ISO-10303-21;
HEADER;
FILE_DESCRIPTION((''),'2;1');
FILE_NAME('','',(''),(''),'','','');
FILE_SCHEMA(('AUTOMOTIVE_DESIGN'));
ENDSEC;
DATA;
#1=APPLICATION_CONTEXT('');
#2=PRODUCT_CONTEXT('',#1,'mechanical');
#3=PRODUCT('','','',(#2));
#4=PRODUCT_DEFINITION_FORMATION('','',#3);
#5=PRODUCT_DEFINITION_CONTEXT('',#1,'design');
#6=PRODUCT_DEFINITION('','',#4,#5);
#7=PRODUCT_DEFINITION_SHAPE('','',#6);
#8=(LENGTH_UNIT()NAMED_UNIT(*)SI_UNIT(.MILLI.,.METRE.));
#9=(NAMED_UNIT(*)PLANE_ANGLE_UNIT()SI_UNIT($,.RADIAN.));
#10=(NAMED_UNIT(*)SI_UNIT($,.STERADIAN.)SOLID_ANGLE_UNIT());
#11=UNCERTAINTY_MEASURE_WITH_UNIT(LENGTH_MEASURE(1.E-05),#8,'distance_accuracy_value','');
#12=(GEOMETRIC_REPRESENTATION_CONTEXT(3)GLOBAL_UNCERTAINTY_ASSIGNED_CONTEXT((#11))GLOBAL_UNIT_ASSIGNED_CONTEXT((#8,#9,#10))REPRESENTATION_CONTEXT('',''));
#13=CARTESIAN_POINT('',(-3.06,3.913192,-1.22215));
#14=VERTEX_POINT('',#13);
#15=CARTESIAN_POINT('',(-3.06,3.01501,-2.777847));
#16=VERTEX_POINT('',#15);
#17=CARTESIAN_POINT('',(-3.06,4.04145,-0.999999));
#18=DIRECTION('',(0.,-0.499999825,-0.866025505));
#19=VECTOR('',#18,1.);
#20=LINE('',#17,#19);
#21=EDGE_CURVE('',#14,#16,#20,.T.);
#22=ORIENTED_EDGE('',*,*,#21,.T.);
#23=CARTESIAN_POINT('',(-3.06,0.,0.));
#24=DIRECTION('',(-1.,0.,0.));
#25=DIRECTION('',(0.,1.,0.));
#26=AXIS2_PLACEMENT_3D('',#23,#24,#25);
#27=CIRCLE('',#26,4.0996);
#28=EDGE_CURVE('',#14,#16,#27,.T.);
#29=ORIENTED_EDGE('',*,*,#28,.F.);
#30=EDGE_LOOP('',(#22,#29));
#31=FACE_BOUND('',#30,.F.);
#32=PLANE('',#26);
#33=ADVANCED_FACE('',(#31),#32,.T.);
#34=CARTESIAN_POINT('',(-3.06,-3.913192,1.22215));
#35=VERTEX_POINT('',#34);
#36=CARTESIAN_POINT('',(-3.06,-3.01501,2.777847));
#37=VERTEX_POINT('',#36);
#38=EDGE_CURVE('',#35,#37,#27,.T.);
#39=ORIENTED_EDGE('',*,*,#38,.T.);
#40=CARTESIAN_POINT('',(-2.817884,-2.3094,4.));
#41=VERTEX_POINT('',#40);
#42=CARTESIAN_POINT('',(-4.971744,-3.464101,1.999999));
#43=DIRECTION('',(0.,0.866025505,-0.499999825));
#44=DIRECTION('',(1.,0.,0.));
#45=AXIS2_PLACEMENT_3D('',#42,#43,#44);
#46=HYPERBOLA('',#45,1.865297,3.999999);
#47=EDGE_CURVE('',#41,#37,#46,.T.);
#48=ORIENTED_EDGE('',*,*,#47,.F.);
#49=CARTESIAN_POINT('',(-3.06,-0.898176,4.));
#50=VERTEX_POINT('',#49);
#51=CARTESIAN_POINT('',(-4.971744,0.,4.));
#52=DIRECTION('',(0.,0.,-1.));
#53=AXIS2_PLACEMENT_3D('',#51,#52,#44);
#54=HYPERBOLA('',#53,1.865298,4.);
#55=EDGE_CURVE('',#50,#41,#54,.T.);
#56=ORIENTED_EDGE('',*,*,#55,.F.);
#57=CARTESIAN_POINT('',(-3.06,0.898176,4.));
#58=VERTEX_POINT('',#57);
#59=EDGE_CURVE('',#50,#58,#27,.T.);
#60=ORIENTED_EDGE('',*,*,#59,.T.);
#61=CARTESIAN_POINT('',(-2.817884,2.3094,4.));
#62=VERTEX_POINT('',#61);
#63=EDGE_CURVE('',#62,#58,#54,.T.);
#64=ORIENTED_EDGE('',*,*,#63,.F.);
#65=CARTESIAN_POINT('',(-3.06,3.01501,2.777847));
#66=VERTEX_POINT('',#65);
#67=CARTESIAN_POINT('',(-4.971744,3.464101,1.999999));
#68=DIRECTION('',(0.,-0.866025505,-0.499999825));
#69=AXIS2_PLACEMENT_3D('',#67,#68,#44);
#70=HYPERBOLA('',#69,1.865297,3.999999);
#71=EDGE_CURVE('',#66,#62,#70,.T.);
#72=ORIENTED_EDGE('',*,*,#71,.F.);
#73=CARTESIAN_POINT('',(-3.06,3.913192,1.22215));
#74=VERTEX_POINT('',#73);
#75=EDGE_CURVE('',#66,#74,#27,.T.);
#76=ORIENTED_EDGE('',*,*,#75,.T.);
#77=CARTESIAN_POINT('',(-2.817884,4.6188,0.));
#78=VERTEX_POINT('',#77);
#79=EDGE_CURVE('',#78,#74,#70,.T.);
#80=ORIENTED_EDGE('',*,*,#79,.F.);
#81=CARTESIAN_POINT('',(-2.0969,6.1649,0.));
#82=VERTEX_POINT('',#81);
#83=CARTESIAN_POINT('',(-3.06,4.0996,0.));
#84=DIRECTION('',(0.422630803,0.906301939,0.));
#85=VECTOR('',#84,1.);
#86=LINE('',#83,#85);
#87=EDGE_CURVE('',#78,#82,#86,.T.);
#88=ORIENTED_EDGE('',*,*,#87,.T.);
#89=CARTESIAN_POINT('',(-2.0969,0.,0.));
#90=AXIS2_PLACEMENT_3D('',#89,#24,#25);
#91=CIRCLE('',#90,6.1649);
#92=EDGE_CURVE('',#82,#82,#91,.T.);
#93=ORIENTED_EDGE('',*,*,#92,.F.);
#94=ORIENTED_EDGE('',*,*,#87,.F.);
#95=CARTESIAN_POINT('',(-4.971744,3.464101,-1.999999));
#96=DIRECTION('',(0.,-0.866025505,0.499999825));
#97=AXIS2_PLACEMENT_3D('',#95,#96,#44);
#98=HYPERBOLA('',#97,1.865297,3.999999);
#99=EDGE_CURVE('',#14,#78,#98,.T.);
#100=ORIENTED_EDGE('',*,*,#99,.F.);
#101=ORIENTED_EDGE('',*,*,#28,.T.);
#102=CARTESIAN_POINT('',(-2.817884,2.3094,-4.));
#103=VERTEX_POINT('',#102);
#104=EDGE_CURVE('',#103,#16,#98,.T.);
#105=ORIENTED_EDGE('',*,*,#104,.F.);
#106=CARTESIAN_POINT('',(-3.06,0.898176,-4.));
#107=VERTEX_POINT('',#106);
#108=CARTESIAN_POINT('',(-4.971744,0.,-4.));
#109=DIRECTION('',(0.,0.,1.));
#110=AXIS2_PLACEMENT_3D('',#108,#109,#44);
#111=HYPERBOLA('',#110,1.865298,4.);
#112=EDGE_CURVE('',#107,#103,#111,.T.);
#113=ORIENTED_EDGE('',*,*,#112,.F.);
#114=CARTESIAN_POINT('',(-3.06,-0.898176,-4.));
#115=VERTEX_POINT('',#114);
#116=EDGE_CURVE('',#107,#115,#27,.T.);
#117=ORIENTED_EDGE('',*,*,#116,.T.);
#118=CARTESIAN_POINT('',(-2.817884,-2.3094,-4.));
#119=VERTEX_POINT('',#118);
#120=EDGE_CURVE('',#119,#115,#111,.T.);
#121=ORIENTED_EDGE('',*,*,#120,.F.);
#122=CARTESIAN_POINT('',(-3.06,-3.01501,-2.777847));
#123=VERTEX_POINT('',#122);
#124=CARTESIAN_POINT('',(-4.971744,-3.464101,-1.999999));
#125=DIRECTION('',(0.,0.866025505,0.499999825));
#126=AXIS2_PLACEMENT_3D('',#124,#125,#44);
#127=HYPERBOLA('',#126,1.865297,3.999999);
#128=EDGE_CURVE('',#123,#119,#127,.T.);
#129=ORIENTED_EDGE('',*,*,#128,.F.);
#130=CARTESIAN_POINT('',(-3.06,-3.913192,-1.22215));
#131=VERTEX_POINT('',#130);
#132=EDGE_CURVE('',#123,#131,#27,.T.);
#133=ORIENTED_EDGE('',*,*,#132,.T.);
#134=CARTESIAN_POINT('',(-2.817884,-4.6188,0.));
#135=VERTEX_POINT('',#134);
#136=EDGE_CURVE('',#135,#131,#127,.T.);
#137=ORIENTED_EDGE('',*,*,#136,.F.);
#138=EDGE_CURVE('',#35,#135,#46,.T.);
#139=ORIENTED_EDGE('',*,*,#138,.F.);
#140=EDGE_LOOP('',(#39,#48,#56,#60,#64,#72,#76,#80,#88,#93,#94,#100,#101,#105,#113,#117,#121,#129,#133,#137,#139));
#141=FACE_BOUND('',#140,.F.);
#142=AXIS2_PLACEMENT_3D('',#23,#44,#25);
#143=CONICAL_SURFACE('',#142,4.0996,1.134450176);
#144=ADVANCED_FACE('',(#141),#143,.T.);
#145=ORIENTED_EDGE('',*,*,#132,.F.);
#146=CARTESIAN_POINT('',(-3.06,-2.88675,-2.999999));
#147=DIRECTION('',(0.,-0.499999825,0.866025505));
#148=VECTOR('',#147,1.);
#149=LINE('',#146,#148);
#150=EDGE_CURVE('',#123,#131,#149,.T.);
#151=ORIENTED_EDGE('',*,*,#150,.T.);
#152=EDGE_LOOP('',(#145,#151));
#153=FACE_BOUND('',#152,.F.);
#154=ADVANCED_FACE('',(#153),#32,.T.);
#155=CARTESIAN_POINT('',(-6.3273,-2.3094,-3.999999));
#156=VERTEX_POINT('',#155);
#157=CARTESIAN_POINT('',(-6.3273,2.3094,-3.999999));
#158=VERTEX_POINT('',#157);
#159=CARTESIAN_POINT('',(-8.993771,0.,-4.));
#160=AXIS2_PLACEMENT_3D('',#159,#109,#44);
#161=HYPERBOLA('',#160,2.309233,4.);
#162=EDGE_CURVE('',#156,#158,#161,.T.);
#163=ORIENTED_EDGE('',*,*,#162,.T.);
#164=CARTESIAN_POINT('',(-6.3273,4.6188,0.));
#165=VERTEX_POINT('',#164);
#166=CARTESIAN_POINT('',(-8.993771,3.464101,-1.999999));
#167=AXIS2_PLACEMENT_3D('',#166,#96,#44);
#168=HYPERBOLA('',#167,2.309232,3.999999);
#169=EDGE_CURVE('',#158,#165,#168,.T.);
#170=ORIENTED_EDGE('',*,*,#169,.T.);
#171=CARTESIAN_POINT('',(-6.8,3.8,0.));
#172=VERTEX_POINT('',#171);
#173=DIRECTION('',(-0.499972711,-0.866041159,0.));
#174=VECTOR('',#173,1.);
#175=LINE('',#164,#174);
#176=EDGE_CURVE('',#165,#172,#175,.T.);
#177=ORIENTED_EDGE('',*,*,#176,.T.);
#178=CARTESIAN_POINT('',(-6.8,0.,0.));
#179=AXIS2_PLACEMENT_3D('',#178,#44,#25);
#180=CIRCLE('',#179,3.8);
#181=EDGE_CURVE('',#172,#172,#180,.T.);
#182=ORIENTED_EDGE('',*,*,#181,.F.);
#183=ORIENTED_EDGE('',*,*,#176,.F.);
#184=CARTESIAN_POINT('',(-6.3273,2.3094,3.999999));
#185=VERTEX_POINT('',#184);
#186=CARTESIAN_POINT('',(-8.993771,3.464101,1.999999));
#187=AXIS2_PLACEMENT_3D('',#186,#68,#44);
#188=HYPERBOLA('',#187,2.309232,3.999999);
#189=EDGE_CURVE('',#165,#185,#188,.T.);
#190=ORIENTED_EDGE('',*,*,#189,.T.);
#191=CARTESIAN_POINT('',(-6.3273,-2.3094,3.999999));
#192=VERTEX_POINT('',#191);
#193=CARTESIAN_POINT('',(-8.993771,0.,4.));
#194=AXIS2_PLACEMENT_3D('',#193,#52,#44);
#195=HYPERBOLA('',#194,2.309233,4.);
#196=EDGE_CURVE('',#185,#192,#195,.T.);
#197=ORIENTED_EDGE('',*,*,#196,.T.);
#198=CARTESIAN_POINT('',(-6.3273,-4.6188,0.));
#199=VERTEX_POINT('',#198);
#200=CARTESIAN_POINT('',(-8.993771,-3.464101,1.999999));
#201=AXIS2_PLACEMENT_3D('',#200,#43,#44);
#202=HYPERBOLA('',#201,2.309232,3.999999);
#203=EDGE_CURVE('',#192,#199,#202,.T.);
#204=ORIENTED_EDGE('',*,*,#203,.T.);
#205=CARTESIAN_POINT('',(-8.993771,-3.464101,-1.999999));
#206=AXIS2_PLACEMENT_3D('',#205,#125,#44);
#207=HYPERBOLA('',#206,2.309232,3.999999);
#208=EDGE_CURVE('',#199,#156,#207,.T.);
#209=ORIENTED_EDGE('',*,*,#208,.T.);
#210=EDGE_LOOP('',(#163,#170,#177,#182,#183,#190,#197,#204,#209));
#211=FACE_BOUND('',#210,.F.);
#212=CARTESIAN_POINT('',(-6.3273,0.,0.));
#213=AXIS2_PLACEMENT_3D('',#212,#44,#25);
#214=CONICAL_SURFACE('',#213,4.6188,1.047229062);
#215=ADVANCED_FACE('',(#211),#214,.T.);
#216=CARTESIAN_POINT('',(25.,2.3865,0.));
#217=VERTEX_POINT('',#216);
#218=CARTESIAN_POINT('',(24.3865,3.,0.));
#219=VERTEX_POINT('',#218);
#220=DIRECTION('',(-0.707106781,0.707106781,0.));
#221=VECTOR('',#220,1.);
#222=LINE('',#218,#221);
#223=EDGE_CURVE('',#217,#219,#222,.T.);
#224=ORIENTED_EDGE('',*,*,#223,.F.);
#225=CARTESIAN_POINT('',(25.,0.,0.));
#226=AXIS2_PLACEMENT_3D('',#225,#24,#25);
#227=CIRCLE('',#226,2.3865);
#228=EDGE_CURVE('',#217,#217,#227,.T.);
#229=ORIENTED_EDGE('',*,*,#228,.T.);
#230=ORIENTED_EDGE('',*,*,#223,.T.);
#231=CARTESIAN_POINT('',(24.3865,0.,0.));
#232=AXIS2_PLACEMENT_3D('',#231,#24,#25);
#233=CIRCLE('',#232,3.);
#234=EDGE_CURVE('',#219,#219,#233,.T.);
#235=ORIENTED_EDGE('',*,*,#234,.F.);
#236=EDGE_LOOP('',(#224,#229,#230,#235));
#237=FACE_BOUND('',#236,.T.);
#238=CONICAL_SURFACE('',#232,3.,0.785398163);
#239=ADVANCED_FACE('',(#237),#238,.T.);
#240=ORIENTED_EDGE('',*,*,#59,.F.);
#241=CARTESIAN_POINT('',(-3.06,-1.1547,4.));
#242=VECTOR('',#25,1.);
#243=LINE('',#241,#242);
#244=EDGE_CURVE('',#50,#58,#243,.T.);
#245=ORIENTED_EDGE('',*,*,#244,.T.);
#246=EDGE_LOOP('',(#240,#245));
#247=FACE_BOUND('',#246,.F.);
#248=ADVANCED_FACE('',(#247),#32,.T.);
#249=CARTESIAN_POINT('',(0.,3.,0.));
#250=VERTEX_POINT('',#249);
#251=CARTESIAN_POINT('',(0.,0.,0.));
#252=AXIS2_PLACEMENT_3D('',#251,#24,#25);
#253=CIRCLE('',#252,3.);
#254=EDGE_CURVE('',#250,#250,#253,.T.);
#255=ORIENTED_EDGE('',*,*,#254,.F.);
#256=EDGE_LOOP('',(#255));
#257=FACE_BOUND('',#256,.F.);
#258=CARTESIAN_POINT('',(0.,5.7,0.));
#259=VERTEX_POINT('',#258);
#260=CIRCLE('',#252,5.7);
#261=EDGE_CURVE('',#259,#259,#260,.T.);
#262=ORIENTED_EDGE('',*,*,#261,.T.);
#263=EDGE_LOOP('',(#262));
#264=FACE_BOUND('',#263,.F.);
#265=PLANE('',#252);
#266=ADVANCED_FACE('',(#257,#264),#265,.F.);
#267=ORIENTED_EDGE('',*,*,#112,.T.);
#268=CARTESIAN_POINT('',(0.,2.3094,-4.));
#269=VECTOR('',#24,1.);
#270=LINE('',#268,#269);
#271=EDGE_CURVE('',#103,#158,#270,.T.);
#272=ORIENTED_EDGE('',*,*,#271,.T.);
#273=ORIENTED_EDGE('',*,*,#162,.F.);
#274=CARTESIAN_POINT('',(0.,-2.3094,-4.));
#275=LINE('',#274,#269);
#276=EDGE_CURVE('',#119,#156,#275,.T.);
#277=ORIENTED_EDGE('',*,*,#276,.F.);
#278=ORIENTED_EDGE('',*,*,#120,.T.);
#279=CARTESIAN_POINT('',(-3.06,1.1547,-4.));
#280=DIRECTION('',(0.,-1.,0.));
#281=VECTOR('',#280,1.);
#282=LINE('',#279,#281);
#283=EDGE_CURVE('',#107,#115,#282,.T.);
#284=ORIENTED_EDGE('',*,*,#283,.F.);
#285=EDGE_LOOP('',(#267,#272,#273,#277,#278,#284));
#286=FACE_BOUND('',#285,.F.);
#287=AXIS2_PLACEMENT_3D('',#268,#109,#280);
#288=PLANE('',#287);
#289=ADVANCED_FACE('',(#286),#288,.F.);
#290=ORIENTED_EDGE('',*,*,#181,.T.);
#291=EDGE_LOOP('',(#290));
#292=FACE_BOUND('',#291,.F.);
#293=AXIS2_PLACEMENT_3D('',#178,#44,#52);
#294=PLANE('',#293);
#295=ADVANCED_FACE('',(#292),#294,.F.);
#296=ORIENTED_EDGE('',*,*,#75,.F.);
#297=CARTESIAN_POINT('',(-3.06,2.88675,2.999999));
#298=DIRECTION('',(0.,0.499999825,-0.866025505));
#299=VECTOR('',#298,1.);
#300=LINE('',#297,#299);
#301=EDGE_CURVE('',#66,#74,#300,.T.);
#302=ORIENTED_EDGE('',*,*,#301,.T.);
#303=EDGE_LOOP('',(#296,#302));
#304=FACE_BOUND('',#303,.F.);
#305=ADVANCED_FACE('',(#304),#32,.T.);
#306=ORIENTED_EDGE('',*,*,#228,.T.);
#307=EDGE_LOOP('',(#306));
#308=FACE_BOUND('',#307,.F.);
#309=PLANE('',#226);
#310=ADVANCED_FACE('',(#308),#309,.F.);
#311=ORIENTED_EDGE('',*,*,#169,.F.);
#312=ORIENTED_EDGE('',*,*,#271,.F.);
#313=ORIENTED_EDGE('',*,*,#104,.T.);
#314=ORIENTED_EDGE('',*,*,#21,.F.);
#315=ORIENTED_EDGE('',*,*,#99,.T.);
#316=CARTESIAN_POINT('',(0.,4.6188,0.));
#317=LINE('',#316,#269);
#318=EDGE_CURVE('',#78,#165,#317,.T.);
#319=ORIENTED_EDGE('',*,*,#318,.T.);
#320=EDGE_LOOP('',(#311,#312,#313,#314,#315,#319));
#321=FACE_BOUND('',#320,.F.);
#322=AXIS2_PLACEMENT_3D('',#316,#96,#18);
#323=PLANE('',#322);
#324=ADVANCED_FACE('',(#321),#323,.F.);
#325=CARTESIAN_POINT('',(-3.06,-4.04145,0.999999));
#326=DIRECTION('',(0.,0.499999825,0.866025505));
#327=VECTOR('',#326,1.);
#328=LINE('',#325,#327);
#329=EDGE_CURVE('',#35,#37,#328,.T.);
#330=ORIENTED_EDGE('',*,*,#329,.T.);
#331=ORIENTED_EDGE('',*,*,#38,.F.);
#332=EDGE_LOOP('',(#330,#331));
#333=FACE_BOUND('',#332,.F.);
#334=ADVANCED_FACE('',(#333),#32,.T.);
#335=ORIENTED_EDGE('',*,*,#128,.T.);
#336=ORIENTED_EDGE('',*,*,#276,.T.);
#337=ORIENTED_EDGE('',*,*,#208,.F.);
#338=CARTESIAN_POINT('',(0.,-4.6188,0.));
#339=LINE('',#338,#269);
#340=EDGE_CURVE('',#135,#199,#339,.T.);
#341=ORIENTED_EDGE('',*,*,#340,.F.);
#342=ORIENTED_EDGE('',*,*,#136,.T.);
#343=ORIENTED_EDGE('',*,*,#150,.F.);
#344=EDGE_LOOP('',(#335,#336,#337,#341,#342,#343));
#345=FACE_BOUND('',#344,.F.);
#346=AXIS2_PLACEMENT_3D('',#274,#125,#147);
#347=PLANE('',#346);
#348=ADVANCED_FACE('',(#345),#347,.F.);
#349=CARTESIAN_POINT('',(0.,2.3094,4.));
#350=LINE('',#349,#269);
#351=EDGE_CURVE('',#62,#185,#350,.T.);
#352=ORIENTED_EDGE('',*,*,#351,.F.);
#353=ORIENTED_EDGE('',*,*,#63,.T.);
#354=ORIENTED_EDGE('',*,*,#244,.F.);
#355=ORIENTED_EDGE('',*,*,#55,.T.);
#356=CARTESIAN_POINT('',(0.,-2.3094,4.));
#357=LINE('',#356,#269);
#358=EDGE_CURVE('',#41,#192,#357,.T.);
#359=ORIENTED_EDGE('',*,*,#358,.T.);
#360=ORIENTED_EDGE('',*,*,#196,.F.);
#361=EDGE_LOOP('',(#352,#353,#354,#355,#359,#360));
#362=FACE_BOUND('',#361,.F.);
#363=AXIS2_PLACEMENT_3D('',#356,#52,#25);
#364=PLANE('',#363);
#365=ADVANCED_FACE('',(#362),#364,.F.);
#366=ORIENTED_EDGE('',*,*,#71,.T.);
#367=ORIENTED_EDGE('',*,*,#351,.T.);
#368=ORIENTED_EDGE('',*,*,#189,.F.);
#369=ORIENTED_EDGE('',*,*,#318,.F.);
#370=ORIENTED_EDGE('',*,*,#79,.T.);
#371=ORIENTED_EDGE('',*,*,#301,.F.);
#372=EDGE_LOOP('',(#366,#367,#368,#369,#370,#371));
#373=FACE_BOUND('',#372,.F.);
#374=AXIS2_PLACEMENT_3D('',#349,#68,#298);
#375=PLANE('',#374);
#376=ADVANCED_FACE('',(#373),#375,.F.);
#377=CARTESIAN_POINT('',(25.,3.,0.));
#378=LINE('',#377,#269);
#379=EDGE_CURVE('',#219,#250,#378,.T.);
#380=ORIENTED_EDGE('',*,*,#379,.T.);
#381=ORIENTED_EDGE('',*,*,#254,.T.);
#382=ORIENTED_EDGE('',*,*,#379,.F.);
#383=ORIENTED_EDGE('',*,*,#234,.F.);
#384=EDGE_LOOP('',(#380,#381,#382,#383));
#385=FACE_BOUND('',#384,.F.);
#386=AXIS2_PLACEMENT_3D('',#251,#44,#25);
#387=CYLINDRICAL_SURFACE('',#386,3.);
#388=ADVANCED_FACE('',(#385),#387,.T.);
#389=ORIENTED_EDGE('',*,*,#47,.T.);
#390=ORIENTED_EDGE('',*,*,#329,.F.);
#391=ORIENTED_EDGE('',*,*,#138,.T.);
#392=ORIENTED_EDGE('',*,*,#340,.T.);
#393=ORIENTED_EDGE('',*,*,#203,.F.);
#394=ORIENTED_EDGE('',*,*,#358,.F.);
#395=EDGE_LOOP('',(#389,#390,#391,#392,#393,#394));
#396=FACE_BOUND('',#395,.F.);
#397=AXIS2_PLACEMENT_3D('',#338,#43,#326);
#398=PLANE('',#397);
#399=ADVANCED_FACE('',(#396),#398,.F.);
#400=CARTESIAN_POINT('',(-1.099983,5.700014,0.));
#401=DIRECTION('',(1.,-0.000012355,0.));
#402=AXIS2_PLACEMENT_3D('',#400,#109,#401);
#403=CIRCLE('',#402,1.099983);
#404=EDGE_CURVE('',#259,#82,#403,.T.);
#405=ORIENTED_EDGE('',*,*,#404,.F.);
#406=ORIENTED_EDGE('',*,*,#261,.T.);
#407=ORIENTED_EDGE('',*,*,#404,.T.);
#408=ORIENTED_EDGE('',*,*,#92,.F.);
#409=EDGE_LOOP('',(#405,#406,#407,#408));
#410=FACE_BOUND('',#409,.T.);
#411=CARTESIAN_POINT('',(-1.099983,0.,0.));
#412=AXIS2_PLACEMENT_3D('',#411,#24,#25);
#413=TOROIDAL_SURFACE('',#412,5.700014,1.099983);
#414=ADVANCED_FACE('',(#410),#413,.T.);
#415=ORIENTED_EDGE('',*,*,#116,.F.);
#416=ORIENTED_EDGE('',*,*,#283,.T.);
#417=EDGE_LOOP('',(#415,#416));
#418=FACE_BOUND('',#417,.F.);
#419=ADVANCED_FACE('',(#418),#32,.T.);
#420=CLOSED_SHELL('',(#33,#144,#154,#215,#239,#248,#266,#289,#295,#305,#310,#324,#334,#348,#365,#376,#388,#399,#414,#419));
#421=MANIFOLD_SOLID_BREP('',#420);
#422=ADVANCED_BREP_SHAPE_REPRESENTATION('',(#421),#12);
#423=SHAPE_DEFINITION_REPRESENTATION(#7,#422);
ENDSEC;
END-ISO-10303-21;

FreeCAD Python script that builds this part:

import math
import FreeCAD as App
import Part
import Sketcher
from FreeCAD import Vector
Q = App.Units.Quantity


def edges_at(feature, points):
    """Names of the edges that pass closest to the given points."""
    edges = feature.Shape.Edges
    near = lambda p: min(range(len(edges)), key=lambda i: edges[i].distToShape(Part.Vertex(*p))[0])
    return sorted({f"Edge{near(p) + 1}" for p in points})

doc = App.newDocument("Part")
body = doc.addObject("PartDesign::Body", "Body")

sketch1 = body.newObject("Sketcher::SketchObject", "Sketch")
sketch1.AttachmentSupport = (doc.getObject("XY_Plane"), [""])
sketch1.MapMode = "FlatFace"
sketch1.addGeometry(Part.LineSegment(Vector(-3.1, 4.1, 0), Vector(-3.1, 0, 0)), False)
sketch1.addGeometry(Part.LineSegment(Vector(-3.1, 0, 0), Vector(25, 0, 0)), False)
sketch1.addGeometry(Part.LineSegment(Vector(25, 0, 0), Vector(25, 3, 0)), False)
sketch1.addGeometry(Part.LineSegment(Vector(25, 3, 0), Vector(0, 3, 0)), False)
sketch1.addGeometry(Part.LineSegment(Vector(0, 3, 0), Vector(0, 5.7, 0)), False)
sketch1.addGeometry(Part.ArcOfCircle(Part.Circle(Vector(-1.1, 5.7, 0), Vector(0, 0, 1), 1.1), math.radians(0), math.radians(155)), False)
sketch1.addGeometry(Part.LineSegment(Vector(-2.1, 6.2, 0), Vector(-3.1, 4.1, 0)), False)
sketch1.addConstraint(Sketcher.Constraint("Coincident", 0, 2, 1, 1))
sketch1.addConstraint(Sketcher.Constraint("Coincident", 1, 2, 2, 1))
sketch1.addConstraint(Sketcher.Constraint("Coincident", 2, 2, 3, 1))
sketch1.addConstraint(Sketcher.Constraint("Coincident", 3, 2, 4, 1))
sketch1.addConstraint(Sketcher.Constraint("Tangent", 4, 2, 5, 1))
sketch1.addConstraint(Sketcher.Constraint("Tangent", 5, 2, 6, 1))
sketch1.addConstraint(Sketcher.Constraint("Coincident", 6, 2, 0, 1))
sketch1.addConstraint(Sketcher.Constraint("Vertical", 0))
sketch1.addConstraint(Sketcher.Constraint("Horizontal", 1))
sketch1.addConstraint(Sketcher.Constraint("Vertical", 2))
sketch1.addConstraint(Sketcher.Constraint("Horizontal", 3))
sketch1.addConstraint(Sketcher.Constraint("Vertical", 4))
sketch1.addConstraint(Sketcher.Constraint("PointOnObject", 0, 2, -1))
sketch1.addConstraint(Sketcher.Constraint("PointOnObject", 3, 2, -2))
sketch1.addConstraint(Sketcher.Constraint("Radius", 5, Q("1.1 mm")))
sketch1.addConstraint(Sketcher.Constraint("DistanceX", 3, 2, 3, 1, Q("25 mm")))
sketch1.addConstraint(Sketcher.Constraint("DistanceY", 2, 1, 2, 2, Q("3 mm")))
sketch1.addConstraint(Sketcher.Constraint("DistanceX", 0, 2, -1, 1, Q("3.06 mm")))
sketch1.addConstraint(Sketcher.Constraint("Angle", 6, Q("-115.0008 deg")))
sketch1.addConstraint(Sketcher.Constraint("DistanceY", 4, 1, 4, 2, Q("2.7 mm")))
revolution = body.newObject("PartDesign::Revolution", "Revolution")
revolution.Profile = sketch1
revolution.ReferenceAxis = (sketch1, ["H_Axis"])
revolution.Angle = 360

sketch2 = body.newObject("Sketcher::SketchObject", "Sketch001")
sketch2.AttachmentSupport = (doc.getObject("YZ_Plane"), [""])
sketch2.MapMode = "FlatFace"
sketch2.addGeometry(Part.LineSegment(Vector(-2.3, -4, 0), Vector(2.3, -4, 0)), False)
sketch2.addGeometry(Part.LineSegment(Vector(2.3, -4, 0), Vector(4.6, 0, 0)), False)
sketch2.addGeometry(Part.LineSegment(Vector(4.6, 0, 0), Vector(2.3, 4, 0)), False)
sketch2.addGeometry(Part.LineSegment(Vector(2.3, 4, 0), Vector(-2.3, 4, 0)), False)
sketch2.addGeometry(Part.LineSegment(Vector(-2.3, 4, 0), Vector(-4.6, 0, 0)), False)
sketch2.addGeometry(Part.LineSegment(Vector(-4.6, 0, 0), Vector(-2.3, -4, 0)), False)
sketch2.addConstraint(Sketcher.Constraint("Coincident", 0, 2, 1, 1))
sketch2.addConstraint(Sketcher.Constraint("Coincident", 1, 2, 2, 1))
sketch2.addConstraint(Sketcher.Constraint("Coincident", 2, 2, 3, 1))
sketch2.addConstraint(Sketcher.Constraint("Coincident", 3, 2, 4, 1))
sketch2.addConstraint(Sketcher.Constraint("Coincident", 4, 2, 5, 1))
sketch2.addConstraint(Sketcher.Constraint("Coincident", 5, 2, 0, 1))
sketch2.addConstraint(Sketcher.Constraint("Horizontal", 0))
sketch2.addConstraint(Sketcher.Constraint("Horizontal", 3))
sketch2.addConstraint(Sketcher.Constraint("Symmetric", 0, 2, 3, 2, -1, 1))
sketch2.addConstraint(Sketcher.Constraint("Symmetric", 1, 2, 4, 2, -1, 1))
sketch2.addConstraint(Sketcher.Constraint("PointOnObject", 1, 2, -1))
sketch2.addConstraint(Sketcher.Constraint("Parallel", 2, 5))
sketch2.addConstraint(Sketcher.Constraint("Vertical", 0, 2, 2, 2))
sketch2.addConstraint(Sketcher.Constraint("DistanceY", 0, 2, 2, 2, Q("8 mm")))
sketch2.addConstraint(Sketcher.Constraint("Angle", 1, Q("60 deg")))
sketch2.addConstraint(Sketcher.Constraint("DistanceX", 0, 1, 0, 2, Q("4.6188 mm")))
pad1 = body.newObject("PartDesign::Pad", "Pad")
pad1.Profile = sketch2
pad1.Length = 6.8
pad1.Reversed = True

sketch3 = body.newObject("Sketcher::SketchObject", "Sketch002")
sketch3.AttachmentSupport = (doc.getObject("XY_Plane"), [""])
sketch3.MapMode = "FlatFace"
sketch3.addGeometry(Part.LineSegment(Vector(-6.8, 4.62, 0), Vector(-6.8, 3.8, 0)), False)
sketch3.addGeometry(Part.LineSegment(Vector(-6.8, 3.8, 0), Vector(-6.33, 4.62, 0)), False)
sketch3.addGeometry(Part.LineSegment(Vector(-6.33, 4.62, 0), Vector(-6.8, 4.62, 0)), False)
sketch3.addConstraint(Sketcher.Constraint("Coincident", 0, 2, 1, 1))
sketch3.addConstraint(Sketcher.Constraint("Coincident", 1, 2, 2, 1))
sketch3.addConstraint(Sketcher.Constraint("Coincident", 2, 2, 0, 1))
sketch3.addConstraint(Sketcher.Constraint("Vertical", 0))
sketch3.addConstraint(Sketcher.Constraint("Horizontal", 2))
sketch3.addConstraint(Sketcher.Constraint("DistanceX", 0, 2, -1, 1, Q("6.8 mm")))
sketch3.addConstraint(Sketcher.Constraint("DistanceY", -1, 1, 0, 2, Q("3.8 mm")))
sketch3.addConstraint(Sketcher.Constraint("DistanceX", 2, 2, 2, 1, Q("0.4727 mm")))
sketch3.addConstraint(Sketcher.Constraint("DistanceY", 0, 2, 0, 1, Q("0.8188 mm")))
groove = body.newObject("PartDesign::Groove", "Groove")
groove.Profile = sketch3
groove.ReferenceAxis = (sketch3, ["H_Axis"])
groove.Angle = 360
doc.recompute()

chamfer = body.newObject("PartDesign::Chamfer", "Chamfer")
chamfer.Base = (groove, edges_at(groove, [(25, -3, 0)]))
chamfer.ChamferType = "Two distances"
chamfer.Size = 0.6135
chamfer.Size2 = 0.6135

doc.recompute()
